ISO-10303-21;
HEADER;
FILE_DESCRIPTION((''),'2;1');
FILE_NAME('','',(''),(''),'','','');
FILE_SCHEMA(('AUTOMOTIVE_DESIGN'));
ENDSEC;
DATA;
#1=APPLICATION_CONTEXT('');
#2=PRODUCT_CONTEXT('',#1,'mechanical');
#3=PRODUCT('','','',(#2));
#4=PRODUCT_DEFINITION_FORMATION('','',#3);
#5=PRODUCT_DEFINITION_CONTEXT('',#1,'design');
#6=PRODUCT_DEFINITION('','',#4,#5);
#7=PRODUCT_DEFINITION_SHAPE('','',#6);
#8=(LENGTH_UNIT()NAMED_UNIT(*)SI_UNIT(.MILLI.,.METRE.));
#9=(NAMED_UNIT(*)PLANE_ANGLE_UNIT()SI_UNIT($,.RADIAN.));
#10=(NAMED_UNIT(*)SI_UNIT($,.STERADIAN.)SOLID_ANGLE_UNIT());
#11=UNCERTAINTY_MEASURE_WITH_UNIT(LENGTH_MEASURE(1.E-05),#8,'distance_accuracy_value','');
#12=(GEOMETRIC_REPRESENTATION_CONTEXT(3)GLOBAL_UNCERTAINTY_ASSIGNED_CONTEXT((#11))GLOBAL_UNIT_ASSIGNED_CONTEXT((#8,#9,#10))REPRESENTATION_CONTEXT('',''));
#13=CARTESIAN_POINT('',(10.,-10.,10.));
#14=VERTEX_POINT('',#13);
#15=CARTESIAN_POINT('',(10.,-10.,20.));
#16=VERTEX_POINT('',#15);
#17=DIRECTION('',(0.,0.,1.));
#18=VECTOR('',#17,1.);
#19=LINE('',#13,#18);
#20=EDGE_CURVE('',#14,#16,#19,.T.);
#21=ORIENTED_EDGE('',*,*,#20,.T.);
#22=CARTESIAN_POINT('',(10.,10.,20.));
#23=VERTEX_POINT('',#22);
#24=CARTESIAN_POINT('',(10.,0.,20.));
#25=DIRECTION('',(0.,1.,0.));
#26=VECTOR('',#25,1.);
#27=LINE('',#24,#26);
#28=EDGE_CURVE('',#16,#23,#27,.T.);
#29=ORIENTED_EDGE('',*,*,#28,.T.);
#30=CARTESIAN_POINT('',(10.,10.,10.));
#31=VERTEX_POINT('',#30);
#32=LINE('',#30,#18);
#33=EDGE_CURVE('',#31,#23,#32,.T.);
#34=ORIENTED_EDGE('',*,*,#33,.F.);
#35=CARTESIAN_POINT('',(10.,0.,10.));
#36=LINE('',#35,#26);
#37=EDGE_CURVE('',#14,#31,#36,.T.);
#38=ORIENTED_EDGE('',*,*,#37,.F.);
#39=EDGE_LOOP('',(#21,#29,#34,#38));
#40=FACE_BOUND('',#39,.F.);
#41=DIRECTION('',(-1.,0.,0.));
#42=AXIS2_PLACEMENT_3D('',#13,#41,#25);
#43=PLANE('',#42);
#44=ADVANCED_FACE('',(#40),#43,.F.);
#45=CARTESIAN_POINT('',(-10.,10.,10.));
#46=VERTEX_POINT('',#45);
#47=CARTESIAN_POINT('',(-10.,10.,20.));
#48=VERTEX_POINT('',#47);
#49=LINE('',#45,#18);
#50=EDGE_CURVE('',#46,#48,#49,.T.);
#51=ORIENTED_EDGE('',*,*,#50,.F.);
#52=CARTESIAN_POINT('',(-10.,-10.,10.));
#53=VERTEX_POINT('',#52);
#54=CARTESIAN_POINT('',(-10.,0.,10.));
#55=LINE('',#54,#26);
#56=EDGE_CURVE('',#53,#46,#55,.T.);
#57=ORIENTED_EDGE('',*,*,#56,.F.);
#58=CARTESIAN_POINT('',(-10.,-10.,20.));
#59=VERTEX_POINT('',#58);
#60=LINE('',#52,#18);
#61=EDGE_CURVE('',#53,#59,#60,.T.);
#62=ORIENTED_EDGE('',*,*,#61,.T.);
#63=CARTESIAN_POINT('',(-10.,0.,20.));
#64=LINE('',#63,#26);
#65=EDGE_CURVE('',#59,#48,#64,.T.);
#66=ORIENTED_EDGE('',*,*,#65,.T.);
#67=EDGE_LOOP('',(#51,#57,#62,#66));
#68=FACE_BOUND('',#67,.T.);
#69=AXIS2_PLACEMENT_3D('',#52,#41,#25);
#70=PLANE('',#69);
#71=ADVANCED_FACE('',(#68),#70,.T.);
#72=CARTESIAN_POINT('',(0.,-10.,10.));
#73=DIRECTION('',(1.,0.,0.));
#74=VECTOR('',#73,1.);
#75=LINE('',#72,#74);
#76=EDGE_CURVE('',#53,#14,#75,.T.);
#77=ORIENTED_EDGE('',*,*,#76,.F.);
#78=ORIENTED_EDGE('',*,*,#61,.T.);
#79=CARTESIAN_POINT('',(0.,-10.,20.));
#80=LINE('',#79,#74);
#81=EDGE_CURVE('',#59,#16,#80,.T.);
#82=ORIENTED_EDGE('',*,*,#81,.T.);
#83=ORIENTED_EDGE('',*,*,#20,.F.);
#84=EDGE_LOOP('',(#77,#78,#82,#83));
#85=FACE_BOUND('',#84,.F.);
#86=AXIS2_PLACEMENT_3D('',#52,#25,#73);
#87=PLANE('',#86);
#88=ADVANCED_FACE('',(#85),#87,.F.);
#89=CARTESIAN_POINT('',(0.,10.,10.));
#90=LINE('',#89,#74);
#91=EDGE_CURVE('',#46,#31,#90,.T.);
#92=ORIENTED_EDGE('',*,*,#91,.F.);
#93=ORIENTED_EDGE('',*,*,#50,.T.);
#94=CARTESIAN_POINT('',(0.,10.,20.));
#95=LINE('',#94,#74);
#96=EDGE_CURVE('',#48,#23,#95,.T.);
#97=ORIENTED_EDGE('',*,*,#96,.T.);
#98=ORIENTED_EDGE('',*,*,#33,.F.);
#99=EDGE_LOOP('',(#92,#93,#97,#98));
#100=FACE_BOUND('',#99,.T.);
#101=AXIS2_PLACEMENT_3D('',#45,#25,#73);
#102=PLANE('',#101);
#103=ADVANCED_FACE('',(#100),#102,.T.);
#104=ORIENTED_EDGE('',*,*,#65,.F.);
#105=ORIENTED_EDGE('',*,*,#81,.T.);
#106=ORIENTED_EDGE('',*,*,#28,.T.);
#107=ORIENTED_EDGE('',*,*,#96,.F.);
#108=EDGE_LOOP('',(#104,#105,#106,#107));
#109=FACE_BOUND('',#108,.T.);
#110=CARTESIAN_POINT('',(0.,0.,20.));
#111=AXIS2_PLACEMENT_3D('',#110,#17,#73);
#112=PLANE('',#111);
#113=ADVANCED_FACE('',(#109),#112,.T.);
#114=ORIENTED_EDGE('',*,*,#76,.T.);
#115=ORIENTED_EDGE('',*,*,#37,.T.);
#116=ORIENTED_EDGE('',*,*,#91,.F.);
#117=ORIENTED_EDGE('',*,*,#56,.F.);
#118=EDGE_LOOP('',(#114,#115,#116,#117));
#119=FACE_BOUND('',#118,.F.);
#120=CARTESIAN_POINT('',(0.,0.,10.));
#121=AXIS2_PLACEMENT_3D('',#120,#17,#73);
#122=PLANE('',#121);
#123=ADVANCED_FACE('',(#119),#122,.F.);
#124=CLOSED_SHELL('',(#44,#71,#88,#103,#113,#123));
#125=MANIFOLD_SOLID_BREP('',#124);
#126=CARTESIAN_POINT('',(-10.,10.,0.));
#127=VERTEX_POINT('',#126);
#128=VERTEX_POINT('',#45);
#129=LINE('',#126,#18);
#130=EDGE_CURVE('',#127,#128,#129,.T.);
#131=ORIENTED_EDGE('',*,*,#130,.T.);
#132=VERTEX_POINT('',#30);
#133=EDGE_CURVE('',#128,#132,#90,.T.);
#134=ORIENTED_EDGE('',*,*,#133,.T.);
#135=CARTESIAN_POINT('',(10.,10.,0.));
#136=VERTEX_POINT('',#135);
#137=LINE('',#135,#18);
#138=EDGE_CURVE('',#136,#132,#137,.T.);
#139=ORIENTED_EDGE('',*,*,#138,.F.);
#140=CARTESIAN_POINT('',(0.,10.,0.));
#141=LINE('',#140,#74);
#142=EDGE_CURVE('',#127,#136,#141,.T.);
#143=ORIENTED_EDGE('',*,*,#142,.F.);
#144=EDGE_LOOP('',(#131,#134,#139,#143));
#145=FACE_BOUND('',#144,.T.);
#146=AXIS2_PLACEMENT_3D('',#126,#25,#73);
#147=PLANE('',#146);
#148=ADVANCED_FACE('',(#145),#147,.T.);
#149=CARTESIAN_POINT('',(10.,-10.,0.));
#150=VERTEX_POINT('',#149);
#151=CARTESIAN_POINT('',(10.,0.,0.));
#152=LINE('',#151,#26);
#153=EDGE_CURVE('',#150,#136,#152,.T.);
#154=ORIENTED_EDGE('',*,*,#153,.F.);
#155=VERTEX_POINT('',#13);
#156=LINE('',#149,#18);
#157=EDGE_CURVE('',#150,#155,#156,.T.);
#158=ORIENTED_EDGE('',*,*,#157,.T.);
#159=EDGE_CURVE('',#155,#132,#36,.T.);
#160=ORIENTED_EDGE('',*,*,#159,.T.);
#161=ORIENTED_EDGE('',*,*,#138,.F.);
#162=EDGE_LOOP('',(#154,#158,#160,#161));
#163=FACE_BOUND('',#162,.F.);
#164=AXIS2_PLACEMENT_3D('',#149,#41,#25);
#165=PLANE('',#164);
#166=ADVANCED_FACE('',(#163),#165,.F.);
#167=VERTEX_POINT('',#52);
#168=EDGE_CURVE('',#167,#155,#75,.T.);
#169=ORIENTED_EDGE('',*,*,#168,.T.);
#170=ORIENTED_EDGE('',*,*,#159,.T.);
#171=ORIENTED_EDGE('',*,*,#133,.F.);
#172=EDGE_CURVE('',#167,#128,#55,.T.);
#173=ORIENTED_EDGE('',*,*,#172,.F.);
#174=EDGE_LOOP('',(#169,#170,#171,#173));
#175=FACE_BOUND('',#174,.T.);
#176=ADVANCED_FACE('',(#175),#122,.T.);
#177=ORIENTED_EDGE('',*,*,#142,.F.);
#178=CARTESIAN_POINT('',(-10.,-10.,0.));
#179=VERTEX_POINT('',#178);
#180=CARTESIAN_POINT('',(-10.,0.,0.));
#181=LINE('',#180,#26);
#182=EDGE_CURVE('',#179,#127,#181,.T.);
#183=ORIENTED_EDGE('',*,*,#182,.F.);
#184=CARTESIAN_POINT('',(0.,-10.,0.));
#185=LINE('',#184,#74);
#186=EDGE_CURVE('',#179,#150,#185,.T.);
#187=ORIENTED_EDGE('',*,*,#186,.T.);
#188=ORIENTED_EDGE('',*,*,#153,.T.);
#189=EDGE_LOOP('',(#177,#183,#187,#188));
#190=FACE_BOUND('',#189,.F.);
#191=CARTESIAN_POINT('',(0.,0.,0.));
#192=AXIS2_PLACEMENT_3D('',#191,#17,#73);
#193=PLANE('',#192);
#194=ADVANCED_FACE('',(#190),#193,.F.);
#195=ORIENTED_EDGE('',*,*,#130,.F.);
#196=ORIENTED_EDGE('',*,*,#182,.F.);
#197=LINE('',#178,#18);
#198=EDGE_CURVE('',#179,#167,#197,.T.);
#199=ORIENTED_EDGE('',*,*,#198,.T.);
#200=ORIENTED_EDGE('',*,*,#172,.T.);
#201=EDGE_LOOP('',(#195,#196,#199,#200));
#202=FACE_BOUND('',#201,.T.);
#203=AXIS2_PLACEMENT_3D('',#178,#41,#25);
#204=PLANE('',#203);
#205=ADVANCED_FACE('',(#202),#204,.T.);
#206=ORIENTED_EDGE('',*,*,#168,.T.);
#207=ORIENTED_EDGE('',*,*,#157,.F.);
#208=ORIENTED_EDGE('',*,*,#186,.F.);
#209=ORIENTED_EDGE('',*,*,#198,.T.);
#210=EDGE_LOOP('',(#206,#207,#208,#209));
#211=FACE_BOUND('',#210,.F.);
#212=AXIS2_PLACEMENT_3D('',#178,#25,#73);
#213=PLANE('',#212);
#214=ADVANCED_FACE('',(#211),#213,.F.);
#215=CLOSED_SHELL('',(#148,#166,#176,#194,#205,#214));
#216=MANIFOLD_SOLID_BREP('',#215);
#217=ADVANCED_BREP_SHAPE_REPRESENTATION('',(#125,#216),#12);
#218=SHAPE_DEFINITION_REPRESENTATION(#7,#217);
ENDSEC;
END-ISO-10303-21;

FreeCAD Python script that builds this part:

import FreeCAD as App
import Part
import Sketcher
from FreeCAD import Vector
Q = App.Units.Quantity


def add_polygon(sketch, points):
    """Adds a closed chain of lines whose ends are joined by coincident constraints."""
    first, n = sketch.GeometryCount, len(points)
    for a, b in zip(points, points[1:] + points[:1]):
        sketch.addGeometry(Part.LineSegment(App.Vector(*a, 0), App.Vector(*b, 0)), False)
    for i in range(n):
        sketch.addConstraint(Sketcher.Constraint("Coincident", first + i, 2, first + (i + 1) % n, 1))

doc = App.newDocument("Part")
params = doc.addObject("Spreadsheet::Sheet", "Params")
for row, (alias, value) in enumerate([
    ("sketch1_width", "20 mm"),
    ("pad1_length", "10 mm"),
    ("sketch2_width", "20 mm"),
    ("pad2_length", "10 mm"),
], start=1):
    params.set(f"A{row}", alias)
    params.set(f"B{row}", "=" + value)
    params.setAlias(f"B{row}", alias)

body = doc.addObject("PartDesign::Body", "Body")

sketch1 = body.newObject("Sketcher::SketchObject", "Sketch")
sketch1.AttachmentSupport = (doc.getObject("XY_Plane"), [""])
sketch1.MapMode = "FlatFace"
add_polygon(sketch1, [(-10, 10), (-10, -10), (10, -10), (10, 10)])
sketch1.addConstraint([
    Sketcher.Constraint("Vertical", 0),
    Sketcher.Constraint("Horizontal", 1),
    Sketcher.Constraint("Vertical", 2),
    Sketcher.Constraint("Horizontal", 3),
    Sketcher.Constraint("Symmetric", 0, 2, 2, 2, -1, 1),
    Sketcher.Constraint("Equal", 3, 0),
    Sketcher.Constraint("DistanceX", 1, 1, 1, 2, Q("20 mm")),
])
sketch1.setExpression("Constraints[10]", "Params.sketch1_width")
pad1 = body.newObject("PartDesign::Pad", "Pad")
pad1.Profile = sketch1
pad1.setExpression("Length", "Params.pad1_length")
body2 = doc.addObject("PartDesign::Body", "Body001")

sketch2 = body2.newObject("Sketcher::SketchObject", "Sketch001")
sketch2.AttachmentSupport = (doc.getObject("XY_Plane001"), [""])
sketch2.MapMode = "FlatFace"
sketch2.AttachmentOffset = App.Placement(Vector(0, 0, 10), App.Rotation())
add_polygon(sketch2, [(-10, 10), (-10, -10), (10, -10), (10, 10)])
sketch2.addConstraint([
    Sketcher.Constraint("Vertical", 0),
    Sketcher.Constraint("Horizontal", 1),
    Sketcher.Constraint("Vertical", 2),
    Sketcher.Constraint("Horizontal", 3),
    Sketcher.Constraint("Symmetric", 0, 2, 2, 2, -1, 1),
    Sketcher.Constraint("Equal", 3, 0),
    Sketcher.Constraint("DistanceX", 1, 1, 1, 2, Q("20 mm")),
])
sketch2.setExpression("Constraints[10]", "Params.sketch2_width")
pad2 = body2.newObject("PartDesign::Pad", "Pad001")
pad2.Profile = sketch2
pad2.setExpression("Length", "Params.pad2_length")

doc.recompute()
